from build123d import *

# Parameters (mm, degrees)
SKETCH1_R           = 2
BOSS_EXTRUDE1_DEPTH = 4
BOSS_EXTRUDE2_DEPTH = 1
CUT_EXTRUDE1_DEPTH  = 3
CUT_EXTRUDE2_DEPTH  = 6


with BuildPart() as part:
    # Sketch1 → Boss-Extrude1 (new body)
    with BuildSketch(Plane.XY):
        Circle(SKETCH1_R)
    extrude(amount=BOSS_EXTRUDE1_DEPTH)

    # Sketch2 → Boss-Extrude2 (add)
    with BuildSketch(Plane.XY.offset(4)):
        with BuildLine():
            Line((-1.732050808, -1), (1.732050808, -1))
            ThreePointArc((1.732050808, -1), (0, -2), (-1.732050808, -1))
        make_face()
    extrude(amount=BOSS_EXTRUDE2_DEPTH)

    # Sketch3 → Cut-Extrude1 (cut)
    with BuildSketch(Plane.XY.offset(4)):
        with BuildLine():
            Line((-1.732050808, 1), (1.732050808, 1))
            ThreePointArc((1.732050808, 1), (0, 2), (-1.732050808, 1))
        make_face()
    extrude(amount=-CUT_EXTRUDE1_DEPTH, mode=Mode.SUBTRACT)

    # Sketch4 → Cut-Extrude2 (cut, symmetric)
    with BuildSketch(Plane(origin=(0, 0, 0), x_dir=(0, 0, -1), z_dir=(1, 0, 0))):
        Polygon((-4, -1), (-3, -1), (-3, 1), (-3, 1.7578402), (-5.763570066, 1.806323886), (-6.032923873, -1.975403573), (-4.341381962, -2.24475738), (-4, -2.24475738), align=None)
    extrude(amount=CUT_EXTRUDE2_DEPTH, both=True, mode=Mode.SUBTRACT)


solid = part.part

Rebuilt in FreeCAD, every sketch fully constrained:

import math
import FreeCAD as App
import Part
import Sketcher
from FreeCAD import Vector
Q = App.Units.Quantity


def add_polygon(sketch, points):
    """Adds a closed chain of lines whose ends are joined by coincident constraints."""
    first, n = sketch.GeometryCount, len(points)
    for a, b in zip(points, points[1:] + points[:1]):
        sketch.addGeometry(Part.LineSegment(App.Vector(*a, 0), App.Vector(*b, 0)), False)
    for i in range(n):
        sketch.addConstraint(Sketcher.Constraint("Coincident", first + i, 2, first + (i + 1) % n, 1))

doc = App.newDocument("Part")
params = doc.addObject("Spreadsheet::Sheet", "Params")
for row, (alias, value) in enumerate([
    ("sketch1_diameter", "4 mm"),
    ("pad1_length", "4 mm"),
    ("sketch2_radius", "2 mm"),
    ("pad2_length", "1 mm"),
    ("sketch3_radius", "2 mm"),
    ("pocket1_length", "3 mm"),
    ("sketch4_height", "1 mm"),
    ("pocket2_length", "12 mm"),
], start=1):
    params.set(f"A{row}", alias)
    params.set(f"B{row}", "=" + value)
    params.setAlias(f"B{row}", alias)

body = doc.addObject("PartDesign::Body", "Body")

# Sketch on XY plane
sketch1 = doc.addObject("Sketcher::SketchObject", "Sketch")
body.addObject(sketch1)
sketch1.AttachmentSupport = (doc.XY_Plane, [""])
sketch1.MapMode = "FlatFace"
sketch1.addGeometry(Part.Circle(Vector(0, 0, 0), Vector(0, 0, 1), 2), False)
sketch1.addConstraint([
    Sketcher.Constraint("Coincident", 0, 3, -1, 1),
    Sketcher.Constraint("Diameter", 0, Q("4 mm")),
])
sketch1.setExpression("Constraints[1]", "Params.sketch1_diameter")
pad1 = doc.addObject("PartDesign::Pad", "Pad")
body.addObject(pad1)
pad1.Profile = sketch1
pad1.setExpression("Length", "Params.pad1_length")

# Sketch on XY plane
sketch2 = doc.addObject("Sketcher::SketchObject", "Sketch001")
body.addObject(sketch2)
sketch2.AttachmentSupport = (doc.XY_Plane, [""])
sketch2.MapMode = "FlatFace"
sketch2.AttachmentOffset = App.Placement(Vector(0, 0, 4), App.Rotation())
sketch2.addGeometry([
    Part.LineSegment(Vector(1.7, -1, 0), Vector(-1.7, -1, 0)),
    Part.ArcOfCircle(Part.Circle(Vector(0, 0, 0), Vector(0, 0, 1), 2), math.radians(-150), math.radians(-30)),
], False)
sketch2.addConstraint([
    Sketcher.Constraint("Coincident", 0, 1, 1, 2),
    Sketcher.Constraint("Coincident", 1, 1, 0, 2),
    Sketcher.Constraint("Horizontal", 0),
    Sketcher.Constraint("Coincident", 1, 3, -1, 1),
    Sketcher.Constraint("Radius", 1, Q("2 mm")),
    Sketcher.Constraint("DistanceY", 0, 1, -1, 1, Q("1 mm")),
])
sketch2.setExpression("Constraints[4]", "Params.sketch2_radius")
pad2 = doc.addObject("PartDesign::Pad", "Pad001")
body.addObject(pad2)
pad2.Profile = sketch2
pad2.setExpression("Length", "Params.pad2_length")

# Sketch on XY plane
sketch3 = doc.addObject("Sketcher::SketchObject", "Sketch002")
body.addObject(sketch3)
sketch3.AttachmentSupport = (doc.XY_Plane, [""])
sketch3.MapMode = "FlatFace"
sketch3.AttachmentOffset = App.Placement(Vector(0, 0, 4), App.Rotation())
sketch3.addGeometry([
    Part.LineSegment(Vector(-1.7, 1, 0), Vector(1.7, 1, 0)),
    Part.ArcOfCircle(Part.Circle(Vector(0, 0, 0), Vector(0, 0, 1), 2), math.radians(30), math.radians(150)),
], False)
sketch3.addConstraint([
    Sketcher.Constraint("Coincident", 0, 1, 1, 2),
    Sketcher.Constraint("Coincident", 1, 1, 0, 2),
    Sketcher.Constraint("Horizontal", 0),
    Sketcher.Constraint("Coincident", 1, 3, -1, 1),
    Sketcher.Constraint("Radius", 1, Q("2 mm")),
    Sketcher.Constraint("DistanceY", -1, 1, 0, 1, Q("1 mm")),
])
sketch3.setExpression("Constraints[4]", "Params.sketch3_radius")
pocket1 = doc.addObject("PartDesign::Pocket", "Pocket")
body.addObject(pocket1)
pocket1.Profile = sketch3
pocket1.setExpression("Length", "Params.pocket1_length")

# Sketch on YZ plane
sketch4 = doc.addObject("Sketcher::SketchObject", "Sketch003")
body.addObject(sketch4)
sketch4.AttachmentSupport = (doc.YZ_Plane, [""])
sketch4.MapMode = "FlatFace"
add_polygon(sketch4, [(-1, 4), (-1, 3), (1.76, 3), (1.81, 5.76), (-1.98, 6.03), (-2.24, 4.34), (-2.24, 4)])  # lines 0-6
sketch4.addConstraint([
    Sketcher.Constraint("Vertical", 0),
    Sketcher.Constraint("Horizontal", 1),
    Sketcher.Constraint("Vertical", 5),
    Sketcher.Constraint("Horizontal", 6),
    Sketcher.Constraint("DistanceY", 0, 2, 0, 1, Q("1 mm")),
    Sketcher.Constraint("DistanceX", 0, 2, -1, 1, Q("1 mm")),
    Sketcher.Constraint("DistanceY", -1, 1, 0, 2, Q("3 mm")),
    Sketcher.Constraint("DistanceX", 1, 1, 1, 2, Q("2.75784 mm")),
    Sketcher.Constraint("DistanceY", 5, 2, 5, 1, Q("0.341382 mm")),
    Sketcher.Constraint("DistanceX", 6, 1, 6, 2, Q("1.244757 mm")),
    Sketcher.Constraint("DistanceY", -1, 1, 2, 2, Q("5.76357 mm")),
    Sketcher.Constraint("DistanceY", 4, 2, 3, 2, Q("1.691542 mm")),
    Sketcher.Constraint("DistanceX", 4, 2, 2, 2, Q("4.051081 mm")),
    Sketcher.Constraint("Distance", 3, Q("3.791308 mm")),
])
sketch4.setExpression("Constraints[11]", "Params.sketch4_height")
pocket2 = doc.addObject("PartDesign::Pocket", "Pocket001")
body.addObject(pocket2)
pocket2.Profile = sketch4
pocket2.setExpression("Length", "Params.pocket2_length")
pocket2.Midplane = True

doc.recompute()
